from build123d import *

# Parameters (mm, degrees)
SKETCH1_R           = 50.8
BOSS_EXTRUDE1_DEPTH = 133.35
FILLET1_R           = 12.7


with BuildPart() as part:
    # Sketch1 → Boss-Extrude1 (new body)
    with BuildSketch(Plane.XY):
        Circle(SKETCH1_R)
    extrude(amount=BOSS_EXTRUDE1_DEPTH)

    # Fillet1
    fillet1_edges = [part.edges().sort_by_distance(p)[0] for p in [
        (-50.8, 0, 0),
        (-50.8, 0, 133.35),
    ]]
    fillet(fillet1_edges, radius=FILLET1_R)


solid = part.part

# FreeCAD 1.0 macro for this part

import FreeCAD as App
import Part
import Sketcher
Q = App.Units.Quantity


def edges_at(feature, points):
    """Names of the edges that pass closest to the given points."""
    edges = feature.Shape.Edges
    near = lambda p: min(range(len(edges)), key=lambda i: edges[i].distToShape(Part.Vertex(*p))[0])
    return sorted({f"Edge{near(p) + 1}" for p in points})

doc = App.newDocument("Part")
body = doc.addObject("PartDesign::Body", "Body")

# Sketch on XY plane
sketch1 = body.newObject("Sketcher::SketchObject", "Sketch")
sketch1.AttachmentSupport = (doc.getObject("XY_Plane"), [""])
sketch1.MapMode = "FlatFace"
sketch1.addGeometry(Part.Circle(App.Vector(0, 0, 0), App.Vector(0, 0, 1), 51), False)
sketch1.addConstraint([
    Sketcher.Constraint("Coincident", 0, 3, -1, 1),
    Sketcher.Constraint("Diameter", 0, Q("4 in")),
])
pad1 = body.newObject("PartDesign::Pad", "Pad")
pad1.Profile = sketch1
pad1.Length = Q("5.25 in")
doc.recompute()

fillet = body.newObject("PartDesign::Fillet", "Fillet")
fillet.Base = (pad1, edges_at(pad1, [(-50.8, 0, 0), (-50.8, 0, 133.35)]))
fillet.Radius = Q("0.5 in")

doc.recompute()
